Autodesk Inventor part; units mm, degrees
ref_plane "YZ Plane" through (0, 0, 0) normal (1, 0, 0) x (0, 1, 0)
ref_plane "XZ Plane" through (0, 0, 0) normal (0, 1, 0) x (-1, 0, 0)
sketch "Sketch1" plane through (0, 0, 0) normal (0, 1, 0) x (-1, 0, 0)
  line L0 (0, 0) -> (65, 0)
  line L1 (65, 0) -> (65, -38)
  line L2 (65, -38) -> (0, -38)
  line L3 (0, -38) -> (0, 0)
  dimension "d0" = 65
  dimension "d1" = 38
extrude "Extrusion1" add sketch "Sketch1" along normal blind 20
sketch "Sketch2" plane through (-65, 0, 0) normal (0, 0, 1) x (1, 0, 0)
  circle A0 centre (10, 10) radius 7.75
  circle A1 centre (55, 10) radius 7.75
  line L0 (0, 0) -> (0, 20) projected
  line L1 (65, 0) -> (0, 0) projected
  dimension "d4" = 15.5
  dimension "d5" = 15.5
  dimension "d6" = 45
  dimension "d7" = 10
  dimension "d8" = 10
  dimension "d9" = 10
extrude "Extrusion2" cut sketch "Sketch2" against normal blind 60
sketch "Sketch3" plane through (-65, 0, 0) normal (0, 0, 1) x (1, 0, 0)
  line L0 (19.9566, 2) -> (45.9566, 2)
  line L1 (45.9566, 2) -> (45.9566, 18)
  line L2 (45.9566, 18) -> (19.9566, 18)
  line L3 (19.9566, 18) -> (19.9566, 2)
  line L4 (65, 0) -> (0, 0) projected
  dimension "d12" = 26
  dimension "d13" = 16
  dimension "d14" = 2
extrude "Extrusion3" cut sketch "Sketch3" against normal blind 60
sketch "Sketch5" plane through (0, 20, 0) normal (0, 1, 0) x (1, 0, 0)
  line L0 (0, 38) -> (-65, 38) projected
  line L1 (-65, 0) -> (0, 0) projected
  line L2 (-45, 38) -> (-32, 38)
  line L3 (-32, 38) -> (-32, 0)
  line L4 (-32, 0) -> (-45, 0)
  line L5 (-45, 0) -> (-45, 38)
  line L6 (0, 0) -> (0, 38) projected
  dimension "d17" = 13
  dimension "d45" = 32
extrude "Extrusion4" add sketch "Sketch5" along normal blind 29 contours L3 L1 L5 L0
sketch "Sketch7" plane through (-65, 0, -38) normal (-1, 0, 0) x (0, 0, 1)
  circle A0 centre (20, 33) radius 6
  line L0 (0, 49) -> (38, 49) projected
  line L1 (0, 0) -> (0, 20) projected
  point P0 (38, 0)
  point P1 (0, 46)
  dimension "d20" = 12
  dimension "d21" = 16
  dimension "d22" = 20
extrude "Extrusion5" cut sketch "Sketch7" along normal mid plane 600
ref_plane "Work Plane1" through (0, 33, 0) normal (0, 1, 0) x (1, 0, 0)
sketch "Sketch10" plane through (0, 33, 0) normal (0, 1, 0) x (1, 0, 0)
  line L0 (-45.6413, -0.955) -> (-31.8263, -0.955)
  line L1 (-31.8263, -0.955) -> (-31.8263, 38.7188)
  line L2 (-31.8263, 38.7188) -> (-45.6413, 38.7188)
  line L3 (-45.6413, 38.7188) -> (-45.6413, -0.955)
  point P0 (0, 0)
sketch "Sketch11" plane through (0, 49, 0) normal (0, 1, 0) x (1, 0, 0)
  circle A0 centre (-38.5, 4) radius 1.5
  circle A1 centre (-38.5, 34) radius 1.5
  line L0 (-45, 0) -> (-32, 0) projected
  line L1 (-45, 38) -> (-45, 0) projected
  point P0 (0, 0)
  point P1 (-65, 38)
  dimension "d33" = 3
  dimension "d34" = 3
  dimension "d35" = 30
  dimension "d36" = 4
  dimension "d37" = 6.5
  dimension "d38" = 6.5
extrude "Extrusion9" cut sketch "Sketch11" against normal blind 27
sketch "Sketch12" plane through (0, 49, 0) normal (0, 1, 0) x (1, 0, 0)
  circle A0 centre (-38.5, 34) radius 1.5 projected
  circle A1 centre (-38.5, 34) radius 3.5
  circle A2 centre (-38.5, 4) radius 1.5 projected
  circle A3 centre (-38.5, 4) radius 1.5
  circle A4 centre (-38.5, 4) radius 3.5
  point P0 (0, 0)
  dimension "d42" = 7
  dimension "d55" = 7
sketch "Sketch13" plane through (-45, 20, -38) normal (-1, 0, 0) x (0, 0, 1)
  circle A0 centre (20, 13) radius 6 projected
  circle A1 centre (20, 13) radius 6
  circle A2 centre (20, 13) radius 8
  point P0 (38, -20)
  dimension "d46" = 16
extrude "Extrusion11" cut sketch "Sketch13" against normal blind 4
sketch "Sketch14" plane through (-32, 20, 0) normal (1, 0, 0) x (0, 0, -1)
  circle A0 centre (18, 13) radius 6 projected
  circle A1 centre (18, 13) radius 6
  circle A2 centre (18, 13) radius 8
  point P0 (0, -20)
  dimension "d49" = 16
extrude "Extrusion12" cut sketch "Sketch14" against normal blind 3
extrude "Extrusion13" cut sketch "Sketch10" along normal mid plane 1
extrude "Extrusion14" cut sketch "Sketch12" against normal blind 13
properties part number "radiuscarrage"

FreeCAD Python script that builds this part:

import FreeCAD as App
import Part
import Sketcher
from FreeCAD import Vector

doc = App.newDocument("Part")
body = doc.addObject("PartDesign::Body", "Body")
body.AllowCompound = True

sketch1 = doc.addObject("Sketcher::SketchObject", "Sketch")
body.addObject(sketch1)
sketch1.AttachmentSupport = (doc.XZ_Plane, [""])
sketch1.MapMode = "FlatFace"
sketch1.addGeometry([
    Part.LineSegment(Vector(-65, 0, 0), Vector(0, 0, 0)),
    Part.LineSegment(Vector(0, 0, 0), Vector(0, -38, 0)),
    Part.LineSegment(Vector(0, -38, 0), Vector(-65, -38, 0)),
    Part.LineSegment(Vector(-65, -38, 0), Vector(-65, 0, 0)),
], False)
sketch1.addConstraint([
    Sketcher.Constraint("Coincident", 0, 2, 1, 1),
    Sketcher.Constraint("Coincident", 1, 2, 2, 1),
    Sketcher.Constraint("Coincident", 2, 2, 3, 1),
    Sketcher.Constraint("Coincident", 3, 2, 0, 1),
    Sketcher.Constraint("Horizontal", 0),
    Sketcher.Constraint("Vertical", 1),
    Sketcher.Constraint("Horizontal", 2),
    Sketcher.Constraint("Vertical", 3),
    Sketcher.Constraint("Coincident", 0, 2, -1, 1),
    Sketcher.Constraint("DistanceX", 0, 1, 0, 2, 65.0),
    Sketcher.Constraint("DistanceY", 1, 2, 1, 1, 38.0),
])
pad1 = doc.addObject("PartDesign::Pad", "Pad")
body.addObject(pad1)
pad1.Profile = sketch1
pad1.Length = 20
pad1.Reversed = True

sketch2 = doc.addObject("Sketcher::SketchObject", "Sketch001")
body.addObject(sketch2)
sketch2.AttachmentSupport = (doc.XY_Plane, [""])
sketch2.MapMode = "FlatFace"
sketch2.addGeometry([
    Part.Circle(Vector(-55, 10, 0), Vector(0, 0, 1), 8),
    Part.Circle(Vector(-10, 10, 0), Vector(0, 0, 1), 8),
], False)
sketch2.addConstraint([
    Sketcher.Constraint("Equal", 0, 1),
    Sketcher.Constraint("Horizontal", 0, 3, 1, 3),
    Sketcher.Constraint("Diameter", 0, 15.5),
    Sketcher.Constraint("DistanceY", -1, 1, 0, 3, 10.0),
    Sketcher.Constraint("DistanceX", 1, 3, -1, 1, 10.0),
    Sketcher.Constraint("DistanceX", 0, 3, 1, 3, 45.0),
])
pocket1 = doc.addObject("PartDesign::Pocket", "Pocket")
body.addObject(pocket1)
pocket1.Profile = sketch2
pocket1.Length = 60

sketch3 = doc.addObject("Sketcher::SketchObject", "Sketch002")
body.addObject(sketch3)
sketch3.AttachmentSupport = (doc.XY_Plane, [""])
sketch3.MapMode = "FlatFace"
sketch3.addGeometry([
    Part.LineSegment(Vector(-45, 18, 0), Vector(-45, 2, 0)),
    Part.LineSegment(Vector(-45, 2, 0), Vector(-19, 2, 0)),
    Part.LineSegment(Vector(-19, 2, 0), Vector(-19, 18, 0)),
    Part.LineSegment(Vector(-19, 18, 0), Vector(-45, 18, 0)),
], False)
sketch3.addConstraint([
    Sketcher.Constraint("Coincident", 0, 2, 1, 1),
    Sketcher.Constraint("Coincident", 1, 2, 2, 1),
    Sketcher.Constraint("Coincident", 2, 2, 3, 1),
    Sketcher.Constraint("Coincident", 3, 2, 0, 1),
    Sketcher.Constraint("Vertical", 0),
    Sketcher.Constraint("Horizontal", 1),
    Sketcher.Constraint("Vertical", 2),
    Sketcher.Constraint("Horizontal", 3),
    Sketcher.Constraint("DistanceX", 1, 1, 1, 2, 26.0),
    Sketcher.Constraint("DistanceY", 0, 2, 0, 1, 16.0),
    Sketcher.Constraint("DistanceY", -1, 1, 0, 2, 2.0),
    Sketcher.Constraint("DistanceX", 0, 2, -1, 1, 45.0434),
])
pocket2 = doc.addObject("PartDesign::Pocket", "Pocket001")
body.addObject(pocket2)
pocket2.Profile = sketch3
pocket2.Length = 60

sketch4 = doc.addObject("Sketcher::SketchObject", "Sketch003")
body.addObject(sketch4)
sketch4.AttachmentSupport = (doc.XZ_Plane, [""])
sketch4.MapMode = "FlatFace"
sketch4.AttachmentOffset = App.Placement(Vector(0, 0, -20), App.Rotation())
sketch4.addGeometry([
    Part.LineSegment(Vector(-32, 0, 0), Vector(-32, -38, 0)),
    Part.LineSegment(Vector(-32, -38, 0), Vector(-45, -38, 0)),
    Part.LineSegment(Vector(-45, -38, 0), Vector(-45, 0, 0)),
    Part.LineSegment(Vector(-45, 0, 0), Vector(-32, 0, 0)),
], False)
sketch4.addConstraint([
    Sketcher.Constraint("Coincident", 0, 2, 1, 1),
    Sketcher.Constraint("Coincident", 1, 2, 2, 1),
    Sketcher.Constraint("Coincident", 2, 2, 3, 1),
    Sketcher.Constraint("Coincident", 3, 2, 0, 1),
    Sketcher.Constraint("Vertical", 0),
    Sketcher.Constraint("Horizontal", 1),
    Sketcher.Constraint("Vertical", 2),
    Sketcher.Constraint("Horizontal", 3),
    Sketcher.Constraint("PointOnObject", 2, 2, -1),
    Sketcher.Constraint("DistanceX", 1, 2, 1, 1, 13.0),
    Sketcher.Constraint("DistanceX", 0, 2, -1, 1, 32.0),
    Sketcher.Constraint("DistanceY", 0, 2, 0, 1, 38.0),
])
pad2 = doc.addObject("PartDesign::Pad", "Pad001")
body.addObject(pad2)
pad2.Profile = sketch4
pad2.Length = 29
pad2.Reversed = True

sketch5 = doc.addObject("Sketcher::SketchObject", "Sketch004")
body.addObject(sketch5)
sketch5.AttachmentSupport = (doc.YZ_Plane, [""])
sketch5.MapMode = "FlatFace"
sketch5.AttachmentOffset = App.Placement(Vector(0, 0, -65), App.Rotation())
sketch5.addGeometry(Part.Circle(Vector(33, -18, 0), Vector(0, 0, 1), 6), False)
sketch5.addConstraint([
    Sketcher.Constraint("Diameter", 0, 12.0),
    Sketcher.Constraint("DistanceX", -1, 1, 0, 3, 33.0),
    Sketcher.Constraint("DistanceY", 0, 3, -1, 1, 18.0),
])
pocket3 = doc.addObject("PartDesign::Pocket", "Pocket002")
body.addObject(pocket3)
pocket3.Profile = sketch5
pocket3.Length = 600
pocket3.Midplane = True

sketch6 = doc.addObject("Sketcher::SketchObject", "Sketch005")
body.addObject(sketch6)
sketch6.AttachmentSupport = (doc.XZ_Plane, [""])
sketch6.MapMode = "FlatFace"
sketch6.AttachmentOffset = App.Placement(Vector(0, 0, -49), App.Rotation())
sketch6.addGeometry([
    Part.Circle(Vector(-38.5, -4, 0), Vector(0, 0, 1), 1.5),
    Part.Circle(Vector(-38.5, -34, 0), Vector(0, 0, 1), 1.5),
], False)
sketch6.addConstraint([
    Sketcher.Constraint("Equal", 0, 1),
    Sketcher.Constraint("Vertical", 0, 3, 1, 3),
    Sketcher.Constraint("Diameter", 0, 3.0),
    Sketcher.Constraint("DistanceY", 0, 3, -1, 1, 4.0),
    Sketcher.Constraint("DistanceY", 1, 3, 0, 3, 30.0),
    Sketcher.Constraint("DistanceX", 0, 3, -1, 1, 38.5),
])
pocket4 = doc.addObject("PartDesign::Pocket", "Pocket003")
body.addObject(pocket4)
pocket4.Profile = sketch6
pocket4.Length = 27
pocket4.Reversed = True

sketch7 = doc.addObject("Sketcher::SketchObject", "Sketch006")
body.addObject(sketch7)
sketch7.AttachmentSupport = (doc.YZ_Plane, [""])
sketch7.MapMode = "FlatFace"
sketch7.AttachmentOffset = App.Placement(Vector(0, 0, -45), App.Rotation())
sketch7.addGeometry([
    Part.Circle(Vector(33, -18, 0), Vector(0, 0, 1), 8),
    Part.Circle(Vector(33, -18, 0), Vector(0, 0, 1), 6),
], False)
sketch7.addConstraint([
    Sketcher.Constraint("Coincident", 1, 3, 0, 3),
    Sketcher.Constraint("Diameter", 0, 16.0),
    Sketcher.Constraint("Diameter", 1, 12.0),
    Sketcher.Constraint("DistanceX", -1, 1, 0, 3, 33.0),
    Sketcher.Constraint("DistanceY", 0, 3, -1, 1, 18.0),
])
pocket5 = doc.addObject("PartDesign::Pocket", "Pocket004")
body.addObject(pocket5)
pocket5.Profile = sketch7
pocket5.Length = 4
pocket5.Reversed = True

sketch8 = doc.addObject("Sketcher::SketchObject", "Sketch007")
body.addObject(sketch8)
sketch8.AttachmentSupport = (doc.YZ_Plane, [""])
sketch8.MapMode = "FlatFace"
sketch8.AttachmentOffset = App.Placement(Vector(0, 0, -32), App.Rotation())
sketch8.addGeometry([
    Part.Circle(Vector(33, -18, 0), Vector(0, 0, 1), 8),
    Part.Circle(Vector(33, -18, 0), Vector(0, 0, 1), 6),
], False)
sketch8.addConstraint([
    Sketcher.Constraint("Coincident", 1, 3, 0, 3),
    Sketcher.Constraint("Diameter", 0, 16.0),
    Sketcher.Constraint("Diameter", 1, 12.0),
    Sketcher.Constraint("DistanceX", -1, 1, 0, 3, 33.0),
    Sketcher.Constraint("DistanceY", 0, 3, -1, 1, 18.0),
])
pocket6 = doc.addObject("PartDesign::Pocket", "Pocket005")
body.addObject(pocket6)
pocket6.Profile = sketch8
pocket6.Length = 3

sketch9 = doc.addObject("Sketcher::SketchObject", "Sketch008")
body.addObject(sketch9)
sketch9.AttachmentSupport = (doc.XZ_Plane, [""])
sketch9.MapMode = "FlatFace"
sketch9.AttachmentOffset = App.Placement(Vector(0, 0, -33), App.Rotation())
sketch9.addGeometry([
    Part.LineSegment(Vector(-46, -39, 0), Vector(-46, 1, 0)),
    Part.LineSegment(Vector(-46, 1, 0), Vector(-32, 1, 0)),
    Part.LineSegment(Vector(-32, 1, 0), Vector(-32, -39, 0)),
    Part.LineSegment(Vector(-32, -39, 0), Vector(-46, -39, 0)),
], False)
sketch9.addConstraint([
    Sketcher.Constraint("Coincident", 0, 2, 1, 1),
    Sketcher.Constraint("Coincident", 1, 2, 2, 1),
    Sketcher.Constraint("Coincident", 2, 2, 3, 1),
    Sketcher.Constraint("Coincident", 3, 2, 0, 1),
    Sketcher.Constraint("Vertical", 0),
    Sketcher.Constraint("Horizontal", 1),
    Sketcher.Constraint("Vertical", 2),
    Sketcher.Constraint("Horizontal", 3),
    Sketcher.Constraint("DistanceX", 1, 1, 1, 2, 13.815),
    Sketcher.Constraint("DistanceY", 0, 1, 0, 2, 39.6738),
    Sketcher.Constraint("DistanceY", -1, 1, 0, 2, 0.955),
    Sketcher.Constraint("DistanceX", 0, 2, -1, 1, 45.6413),
])
pocket7 = doc.addObject("PartDesign::Pocket", "Pocket006")
body.addObject(pocket7)
pocket7.Profile = sketch9
pocket7.Length = 1
pocket7.Midplane = True

sketch10 = doc.addObject("Sketcher::SketchObject", "Sketch009")
body.addObject(sketch10)
sketch10.AttachmentSupport = (doc.XZ_Plane, [""])
sketch10.MapMode = "FlatFace"
sketch10.AttachmentOffset = App.Placement(Vector(0, 0, -49), App.Rotation())
sketch10.addGeometry([
    Part.Circle(Vector(-38.5, -34, 0), Vector(0, 0, 1), 3.5),
    Part.Circle(Vector(-38.5, -34, 0), Vector(0, 0, 1), 1.5),
    Part.Circle(Vector(-38.5, -4, 0), Vector(0, 0, 1), 3.5),
    Part.Circle(Vector(-38.5, -4, 0), Vector(0, 0, 1), 1.5),
], False)
sketch10.addConstraint([
    Sketcher.Constraint("Coincident", 1, 3, 0, 3),
    Sketcher.Constraint("Coincident", 3, 3, 2, 3),
    Sketcher.Constraint("Equal", 0, 2),
    Sketcher.Constraint("Equal", 1, 3),
    Sketcher.Constraint("Vertical", 1, 3, 2, 3),
    Sketcher.Constraint("Diameter", 0, 7.0),
    Sketcher.Constraint("Diameter", 1, 3.0),
    Sketcher.Constraint("DistanceY", 0, 3, -1, 1, 34.0),
    Sketcher.Constraint("DistanceY", 2, 3, -1, 1, 4.0),
    Sketcher.Constraint("DistanceX", 0, 3, -1, 1, 38.5),
])
pocket8 = doc.addObject("PartDesign::Pocket", "Pocket007")
body.addObject(pocket8)
pocket8.Profile = sketch10
pocket8.Length = 13
pocket8.Reversed = True

doc.recompute()
